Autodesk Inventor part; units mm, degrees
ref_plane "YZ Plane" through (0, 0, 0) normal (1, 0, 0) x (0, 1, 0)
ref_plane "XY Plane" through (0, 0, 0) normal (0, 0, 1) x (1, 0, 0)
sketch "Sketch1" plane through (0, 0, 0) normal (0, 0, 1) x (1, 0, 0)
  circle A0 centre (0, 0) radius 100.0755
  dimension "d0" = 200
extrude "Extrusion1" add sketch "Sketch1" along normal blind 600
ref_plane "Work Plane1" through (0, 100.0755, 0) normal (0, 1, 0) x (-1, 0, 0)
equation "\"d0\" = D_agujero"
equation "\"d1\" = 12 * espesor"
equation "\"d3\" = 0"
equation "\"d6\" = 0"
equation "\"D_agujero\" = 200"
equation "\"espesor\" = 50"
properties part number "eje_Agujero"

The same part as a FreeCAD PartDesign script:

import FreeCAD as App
import Part
import Sketcher

doc = App.newDocument("Part")
body = doc.addObject("PartDesign::Body", "Body")

# Sketch on XY plane
sketch1 = body.newObject("Sketcher::SketchObject", "Sketch")
sketch1.AttachmentSupport = (doc.getObject("XY_Plane"), [""])
sketch1.MapMode = "FlatFace"
sketch1.addGeometry(Part.Circle(App.Vector(0, 0, 0), App.Vector(0, 0, 1), 100), False)
sketch1.addConstraint(Sketcher.Constraint("Coincident", 0, 3, -1, 1))
sketch1.addConstraint(Sketcher.Constraint("Diameter", 0, 200.151))
pad1 = body.newObject("PartDesign::Pad", "Pad")
pad1.Profile = sketch1
pad1.Length = 600

doc.recompute()
